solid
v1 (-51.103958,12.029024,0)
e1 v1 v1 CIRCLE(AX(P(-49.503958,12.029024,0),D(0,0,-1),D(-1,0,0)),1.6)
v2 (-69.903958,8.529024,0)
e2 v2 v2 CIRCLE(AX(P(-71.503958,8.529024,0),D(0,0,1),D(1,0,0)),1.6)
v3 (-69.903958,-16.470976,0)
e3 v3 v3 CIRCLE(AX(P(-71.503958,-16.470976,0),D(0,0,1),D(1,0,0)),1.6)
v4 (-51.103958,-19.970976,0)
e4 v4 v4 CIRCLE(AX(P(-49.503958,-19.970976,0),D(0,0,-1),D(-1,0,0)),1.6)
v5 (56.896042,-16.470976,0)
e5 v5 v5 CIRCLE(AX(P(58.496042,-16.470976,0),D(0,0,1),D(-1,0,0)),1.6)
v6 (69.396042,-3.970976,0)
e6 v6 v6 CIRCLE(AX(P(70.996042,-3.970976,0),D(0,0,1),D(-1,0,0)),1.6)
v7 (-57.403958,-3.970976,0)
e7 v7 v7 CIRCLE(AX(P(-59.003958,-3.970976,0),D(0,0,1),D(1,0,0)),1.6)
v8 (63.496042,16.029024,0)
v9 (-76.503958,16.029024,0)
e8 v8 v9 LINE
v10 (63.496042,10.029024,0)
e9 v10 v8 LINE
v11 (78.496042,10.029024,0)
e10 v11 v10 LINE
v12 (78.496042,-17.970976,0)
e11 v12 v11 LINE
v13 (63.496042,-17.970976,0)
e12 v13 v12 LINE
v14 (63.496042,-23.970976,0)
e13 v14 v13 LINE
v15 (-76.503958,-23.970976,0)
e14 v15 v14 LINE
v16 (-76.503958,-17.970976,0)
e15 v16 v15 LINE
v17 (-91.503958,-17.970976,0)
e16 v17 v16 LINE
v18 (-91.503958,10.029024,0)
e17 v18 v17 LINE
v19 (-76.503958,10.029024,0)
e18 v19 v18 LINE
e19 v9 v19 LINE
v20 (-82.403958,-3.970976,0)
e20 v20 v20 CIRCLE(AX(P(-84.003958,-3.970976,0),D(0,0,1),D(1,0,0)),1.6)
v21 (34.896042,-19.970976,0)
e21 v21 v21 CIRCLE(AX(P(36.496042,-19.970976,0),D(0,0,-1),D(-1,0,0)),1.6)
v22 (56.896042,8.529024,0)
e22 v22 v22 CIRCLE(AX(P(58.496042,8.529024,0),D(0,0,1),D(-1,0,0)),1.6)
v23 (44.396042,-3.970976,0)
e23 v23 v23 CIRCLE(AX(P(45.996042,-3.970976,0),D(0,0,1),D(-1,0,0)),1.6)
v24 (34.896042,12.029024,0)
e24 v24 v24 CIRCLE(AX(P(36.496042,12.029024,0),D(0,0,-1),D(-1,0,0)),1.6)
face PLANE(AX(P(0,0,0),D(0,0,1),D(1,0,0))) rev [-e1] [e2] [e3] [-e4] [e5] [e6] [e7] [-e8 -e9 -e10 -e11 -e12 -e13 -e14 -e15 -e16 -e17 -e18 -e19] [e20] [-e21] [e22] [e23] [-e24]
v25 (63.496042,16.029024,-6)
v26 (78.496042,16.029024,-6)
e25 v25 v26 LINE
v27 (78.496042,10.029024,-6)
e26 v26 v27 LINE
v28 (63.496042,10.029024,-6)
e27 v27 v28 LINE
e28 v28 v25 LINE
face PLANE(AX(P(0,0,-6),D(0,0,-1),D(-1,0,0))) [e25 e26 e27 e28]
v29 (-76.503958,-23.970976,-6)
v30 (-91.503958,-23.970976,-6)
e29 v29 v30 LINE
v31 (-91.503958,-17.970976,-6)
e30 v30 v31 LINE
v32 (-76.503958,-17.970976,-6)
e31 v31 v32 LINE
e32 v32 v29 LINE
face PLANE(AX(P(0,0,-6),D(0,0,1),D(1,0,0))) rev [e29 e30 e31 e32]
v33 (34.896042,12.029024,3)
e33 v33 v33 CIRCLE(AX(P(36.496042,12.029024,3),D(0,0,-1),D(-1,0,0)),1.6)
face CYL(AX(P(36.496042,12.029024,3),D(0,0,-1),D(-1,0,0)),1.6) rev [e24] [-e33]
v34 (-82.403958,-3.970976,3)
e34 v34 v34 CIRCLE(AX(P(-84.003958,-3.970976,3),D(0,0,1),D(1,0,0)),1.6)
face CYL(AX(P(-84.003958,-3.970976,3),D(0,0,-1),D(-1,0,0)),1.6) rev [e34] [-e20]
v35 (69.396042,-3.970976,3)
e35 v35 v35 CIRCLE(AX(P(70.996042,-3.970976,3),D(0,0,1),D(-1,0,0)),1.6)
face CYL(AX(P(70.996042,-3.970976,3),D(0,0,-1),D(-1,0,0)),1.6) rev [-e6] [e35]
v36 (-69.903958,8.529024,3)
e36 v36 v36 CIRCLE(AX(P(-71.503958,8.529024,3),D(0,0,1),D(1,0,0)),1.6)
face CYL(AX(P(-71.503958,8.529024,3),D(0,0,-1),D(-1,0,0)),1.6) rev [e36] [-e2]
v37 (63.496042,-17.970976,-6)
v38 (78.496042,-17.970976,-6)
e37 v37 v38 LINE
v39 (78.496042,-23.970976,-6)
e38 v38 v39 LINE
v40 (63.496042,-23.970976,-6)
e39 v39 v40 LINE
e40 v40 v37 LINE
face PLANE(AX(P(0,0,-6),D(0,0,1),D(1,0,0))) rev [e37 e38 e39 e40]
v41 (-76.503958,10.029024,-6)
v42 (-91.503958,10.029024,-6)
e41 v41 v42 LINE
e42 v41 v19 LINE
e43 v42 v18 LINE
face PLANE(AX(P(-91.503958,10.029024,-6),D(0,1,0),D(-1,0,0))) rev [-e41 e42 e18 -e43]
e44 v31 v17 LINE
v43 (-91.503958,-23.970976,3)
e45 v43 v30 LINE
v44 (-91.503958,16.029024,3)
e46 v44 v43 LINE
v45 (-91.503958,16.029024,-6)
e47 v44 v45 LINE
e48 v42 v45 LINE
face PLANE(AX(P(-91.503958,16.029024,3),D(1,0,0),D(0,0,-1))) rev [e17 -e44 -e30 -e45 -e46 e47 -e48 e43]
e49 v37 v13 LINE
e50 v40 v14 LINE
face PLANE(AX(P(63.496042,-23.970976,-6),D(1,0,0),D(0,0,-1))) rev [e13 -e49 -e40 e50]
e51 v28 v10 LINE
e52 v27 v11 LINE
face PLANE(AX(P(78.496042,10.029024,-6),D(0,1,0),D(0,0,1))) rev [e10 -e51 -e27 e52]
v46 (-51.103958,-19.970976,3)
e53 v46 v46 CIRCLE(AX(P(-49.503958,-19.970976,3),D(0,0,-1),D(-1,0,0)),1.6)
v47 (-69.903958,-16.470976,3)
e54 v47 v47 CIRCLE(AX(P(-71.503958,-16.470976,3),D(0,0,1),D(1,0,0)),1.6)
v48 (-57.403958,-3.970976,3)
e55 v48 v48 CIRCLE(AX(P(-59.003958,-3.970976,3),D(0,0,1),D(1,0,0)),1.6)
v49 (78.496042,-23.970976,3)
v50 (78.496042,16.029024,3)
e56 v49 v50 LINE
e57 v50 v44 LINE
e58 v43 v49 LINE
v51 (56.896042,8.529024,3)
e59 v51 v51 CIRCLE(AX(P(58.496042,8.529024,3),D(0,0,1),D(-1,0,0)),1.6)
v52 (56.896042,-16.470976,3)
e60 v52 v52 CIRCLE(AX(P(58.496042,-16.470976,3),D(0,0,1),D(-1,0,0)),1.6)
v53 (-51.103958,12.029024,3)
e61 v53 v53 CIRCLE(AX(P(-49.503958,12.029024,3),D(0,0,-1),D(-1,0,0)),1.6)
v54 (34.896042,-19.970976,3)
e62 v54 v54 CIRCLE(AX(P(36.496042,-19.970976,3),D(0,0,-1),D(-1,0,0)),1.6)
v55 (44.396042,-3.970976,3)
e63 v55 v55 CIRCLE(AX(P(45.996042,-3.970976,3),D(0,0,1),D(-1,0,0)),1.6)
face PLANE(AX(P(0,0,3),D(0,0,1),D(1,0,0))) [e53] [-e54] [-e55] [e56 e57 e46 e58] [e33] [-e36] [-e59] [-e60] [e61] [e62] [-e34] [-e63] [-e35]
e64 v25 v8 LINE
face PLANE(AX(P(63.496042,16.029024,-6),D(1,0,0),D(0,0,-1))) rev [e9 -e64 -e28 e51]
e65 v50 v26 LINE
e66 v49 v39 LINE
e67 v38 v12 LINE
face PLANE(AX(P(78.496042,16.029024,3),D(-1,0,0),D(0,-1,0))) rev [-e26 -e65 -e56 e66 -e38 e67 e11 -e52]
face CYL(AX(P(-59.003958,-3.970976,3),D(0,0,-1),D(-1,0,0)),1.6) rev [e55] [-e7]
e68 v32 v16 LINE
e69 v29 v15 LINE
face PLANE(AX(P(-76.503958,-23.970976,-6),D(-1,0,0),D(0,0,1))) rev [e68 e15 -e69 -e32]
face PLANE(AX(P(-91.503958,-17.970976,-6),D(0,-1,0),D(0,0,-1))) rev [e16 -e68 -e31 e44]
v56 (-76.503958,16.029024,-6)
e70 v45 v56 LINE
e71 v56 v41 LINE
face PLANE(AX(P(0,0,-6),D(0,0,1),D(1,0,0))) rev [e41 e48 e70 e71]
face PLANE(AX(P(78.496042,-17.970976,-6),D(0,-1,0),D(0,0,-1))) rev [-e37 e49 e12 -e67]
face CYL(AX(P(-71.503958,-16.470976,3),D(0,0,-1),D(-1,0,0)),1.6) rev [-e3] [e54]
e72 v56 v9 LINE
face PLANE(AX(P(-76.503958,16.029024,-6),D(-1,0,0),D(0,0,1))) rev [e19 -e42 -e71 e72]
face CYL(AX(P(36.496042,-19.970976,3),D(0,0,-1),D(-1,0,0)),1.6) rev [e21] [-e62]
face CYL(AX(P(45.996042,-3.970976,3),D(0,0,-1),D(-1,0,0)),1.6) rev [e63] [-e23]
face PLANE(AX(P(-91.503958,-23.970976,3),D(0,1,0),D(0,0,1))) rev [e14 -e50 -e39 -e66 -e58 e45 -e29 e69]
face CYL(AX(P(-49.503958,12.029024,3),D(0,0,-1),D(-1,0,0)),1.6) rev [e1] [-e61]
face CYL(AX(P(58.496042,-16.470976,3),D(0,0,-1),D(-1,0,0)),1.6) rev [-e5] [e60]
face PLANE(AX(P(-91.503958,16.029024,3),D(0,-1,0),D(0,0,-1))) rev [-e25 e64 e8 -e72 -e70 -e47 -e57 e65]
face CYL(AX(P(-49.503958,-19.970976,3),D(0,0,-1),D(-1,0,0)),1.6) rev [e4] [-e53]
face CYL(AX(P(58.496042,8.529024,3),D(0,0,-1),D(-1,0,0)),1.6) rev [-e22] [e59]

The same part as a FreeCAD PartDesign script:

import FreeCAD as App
import Part
import Sketcher
from FreeCAD import Vector
Q = App.Units.Quantity

doc = App.newDocument("Part")
body = doc.addObject("PartDesign::Body", "Body")

# Sketch on XY plane
sketch1 = body.newObject("Sketcher::SketchObject", "Sketch")
sketch1.AttachmentSupport = (doc.getObject("XY_Plane"), [""])
sketch1.MapMode = "FlatFace"
sketch1.addGeometry([
    Part.LineSegment(Vector(-91.503958, 16.029024, 0), Vector(-91.503958, -23.970976, 0)),  # 0
    Part.LineSegment(Vector(-91.503958, -23.970976, 0), Vector(78.496042, -23.970976, 0)),  # 1
    Part.LineSegment(Vector(78.496042, -23.970976, 0), Vector(78.496042, 16.029024, 0)),  # 2
    Part.LineSegment(Vector(78.496042, 16.029024, 0), Vector(-91.503958, 16.029024, 0)),  # 3
    Part.Circle(Vector(-71.503958, -16.470976, 0), Vector(0, 0, 1), 1.6),  # 4
    Part.Circle(Vector(58.496042, -16.470976, 0), Vector(0, 0, 1), 1.6),  # 5
    Part.Circle(Vector(-84.003958, -3.970976, 0), Vector(0, 0, 1), 1.6),  # 6
    Part.Circle(Vector(-59.003958, -3.970976, 0), Vector(0, 0, 1), 1.6),  # 7
    Part.Circle(Vector(-71.503958, 8.529024, 0), Vector(0, 0, 1), 1.6),  # 8
    Part.Circle(Vector(45.996042, -3.970976, 0), Vector(0, 0, 1), 1.6),  # 9
    Part.Circle(Vector(70.996042, -3.970976, 0), Vector(0, 0, 1), 1.6),  # 10
    Part.Circle(Vector(58.496042, 8.529024, 0), Vector(0, 0, 1), 1.6),  # 11
], False)
sketch1.addConstraint([
    Sketcher.Constraint("Coincident", 0, 2, 1, 1),
    Sketcher.Constraint("Coincident", 1, 2, 2, 1),
    Sketcher.Constraint("Coincident", 2, 2, 3, 1),
    Sketcher.Constraint("Coincident", 3, 2, 0, 1),
    Sketcher.Constraint("Vertical", 0),
    Sketcher.Constraint("Horizontal", 1),
    Sketcher.Constraint("Vertical", 2),
    Sketcher.Constraint("Horizontal", 3),
    Sketcher.Constraint("Equal", 4, 5),
    Sketcher.Constraint("Equal", 5, 6),
    Sketcher.Constraint("Equal", 6, 7),
    Sketcher.Constraint("Equal", 7, 8),
    Sketcher.Constraint("Equal", 8, 9),
    Sketcher.Constraint("Equal", 9, 10),
    Sketcher.Constraint("Equal", 10, 11),
    Sketcher.Constraint("Horizontal", 4, 3, 5, 3),
    Sketcher.Constraint("Horizontal", 6, 3, 7, 3),
    Sketcher.Constraint("Horizontal", 7, 3, 9, 3),
    Sketcher.Constraint("Horizontal", 9, 3, 10, 3),
    Sketcher.Constraint("Horizontal", 8, 3, 11, 3),
    Sketcher.Constraint("Vertical", 4, 3, 8, 3),
    Sketcher.Constraint("Vertical", 5, 3, 11, 3),
    Sketcher.Constraint("Diameter", 4, Q("3.2 mm")),
    Sketcher.Constraint("DistanceX", 1, 1, 1, 2, Q("170 mm")),
    Sketcher.Constraint("DistanceY", 0, 2, 0, 1, Q("40 mm")),
    Sketcher.Constraint("DistanceX", 4, 3, 5, 3, Q("130 mm")),
    Sketcher.Constraint("DistanceX", 6, 3, 7, 3, Q("25 mm")),
    Sketcher.Constraint("DistanceY", 4, 3, 8, 3, Q("25 mm")),
    Sketcher.Constraint("DistanceX", 7, 3, 9, 3, Q("105 mm")),
    Sketcher.Constraint("DistanceX", 9, 3, 10, 3, Q("25 mm")),
    Sketcher.Constraint("DistanceX", 0, 2, 4, 3, Q("20 mm")),
    Sketcher.Constraint("DistanceY", 0, 2, 6, 3, Q("20 mm")),
    Sketcher.Constraint("DistanceX", 6, 3, 4, 3, Q("12.5 mm")),
    Sketcher.Constraint("DistanceY", 4, 3, 6, 3, Q("12.5 mm")),
    Sketcher.Constraint("DistanceX", 4, 3, -1, 1, Q("71.503958 mm")),
    Sketcher.Constraint("DistanceY", 4, 3, -1, 1, Q("16.470976 mm")),
])
pad1 = body.newObject("PartDesign::Pad", "Pad")
pad1.Profile = sketch1
pad1.Length = 3

# Sketch on XY plane
sketch2 = body.newObject("Sketcher::SketchObject", "Sketch001")
sketch2.AttachmentSupport = (doc.getObject("XY_Plane"), [""])
sketch2.MapMode = "FlatFace"
sketch2.addGeometry([
    Part.Circle(Vector(36.496042, 12.029024, 0), Vector(0, 0, 1), 1.6),
    Part.Circle(Vector(36.496042, -19.970976, 0), Vector(0, 0, 1), 1.6),
    Part.Circle(Vector(-49.503958, 12.029024, 0), Vector(0, 0, 1), 1.6),
    Part.Circle(Vector(-49.503958, -19.970976, 0), Vector(0, 0, 1), 1.6),
], False)
sketch2.addConstraint([
    Sketcher.Constraint("Equal", 0, 1),
    Sketcher.Constraint("Equal", 1, 2),
    Sketcher.Constraint("Equal", 2, 3),
    Sketcher.Constraint("Horizontal", 0, 3, 2, 3),
    Sketcher.Constraint("Horizontal", 1, 3, 3, 3),
    Sketcher.Constraint("Vertical", 0, 3, 1, 3),
    Sketcher.Constraint("Vertical", 2, 3, 3, 3),
    Sketcher.Constraint("Diameter", 0, Q("3.2 mm")),
    Sketcher.Constraint("DistanceY", 1, 3, 0, 3, Q("32 mm")),
    Sketcher.Constraint("DistanceX", 2, 3, 0, 3, Q("86 mm")),
    Sketcher.Constraint("DistanceX", -1, 1, 0, 3, Q("36.496042 mm")),
    Sketcher.Constraint("DistanceY", -1, 1, 0, 3, Q("12.029024 mm")),
])
pocket1 = body.newObject("PartDesign::Pocket", "Pocket")
pocket1.Profile = sketch2
pocket1.Type = "ThroughAll"
pocket1.Reversed = True

# Sketch on XY plane
sketch3 = body.newObject("Sketcher::SketchObject", "Sketch002")
sketch3.AttachmentSupport = (doc.getObject("XY_Plane"), [""])
sketch3.MapMode = "FlatFace"
sketch3.addGeometry([
    Part.LineSegment(Vector(78.496042, 16.029024, 0), Vector(78.496042, 10.029024, 0)),  # 0
    Part.LineSegment(Vector(78.496042, 10.029024, 0), Vector(63.496042, 10.029024, 0)),  # 1
    Part.LineSegment(Vector(63.496042, 10.029024, 0), Vector(63.496042, 16.029024, 0)),  # 2
    Part.LineSegment(Vector(63.496042, 16.029024, 0), Vector(78.496042, 16.029024, 0)),  # 3
    Part.LineSegment(Vector(78.496042, -17.970976, 0), Vector(78.496042, -23.970976, 0)),  # 4
    Part.LineSegment(Vector(78.496042, -23.970976, 0), Vector(63.496042, -23.970976, 0)),  # 5
    Part.LineSegment(Vector(63.496042, -23.970976, 0), Vector(63.496042, -17.970976, 0)),  # 6
    Part.LineSegment(Vector(63.496042, -17.970976, 0), Vector(78.496042, -17.970976, 0)),  # 7
    Part.LineSegment(Vector(-76.503958, 16.029024, 0), Vector(-76.503958, 10.029024, 0)),  # 8
    Part.LineSegment(Vector(-76.503958, 10.029024, 0), Vector(-91.503958, 10.029024, 0)),  # 9
    Part.LineSegment(Vector(-91.503958, 10.029024, 0), Vector(-91.503958, 16.029024, 0)),  # 10
    Part.LineSegment(Vector(-91.503958, 16.029024, 0), Vector(-76.503958, 16.029024, 0)),  # 11
    Part.LineSegment(Vector(-76.503958, -17.970976, 0), Vector(-76.503958, -23.970976, 0)),  # 12
    Part.LineSegment(Vector(-76.503958, -23.970976, 0), Vector(-91.503958, -23.970976, 0)),  # 13
    Part.LineSegment(Vector(-91.503958, -23.970976, 0), Vector(-91.503958, -17.970976, 0)),  # 14
    Part.LineSegment(Vector(-91.503958, -17.970976, 0), Vector(-76.503958, -17.970976, 0)),  # 15
], False)
sketch3.addConstraint([
    Sketcher.Constraint("Coincident", 0, 2, 1, 1),
    Sketcher.Constraint("Coincident", 1, 2, 2, 1),
    Sketcher.Constraint("Coincident", 2, 2, 3, 1),
    Sketcher.Constraint("Coincident", 3, 2, 0, 1),
    Sketcher.Constraint("Coincident", 4, 2, 5, 1),
    Sketcher.Constraint("Coincident", 5, 2, 6, 1),
    Sketcher.Constraint("Coincident", 6, 2, 7, 1),
    Sketcher.Constraint("Coincident", 7, 2, 4, 1),
    Sketcher.Constraint("Coincident", 8, 2, 9, 1),
    Sketcher.Constraint("Coincident", 9, 2, 10, 1),
    Sketcher.Constraint("Coincident", 10, 2, 11, 1),
    Sketcher.Constraint("Coincident", 11, 2, 8, 1),
    Sketcher.Constraint("Coincident", 12, 2, 13, 1),
    Sketcher.Constraint("Coincident", 13, 2, 14, 1),
    Sketcher.Constraint("Coincident", 14, 2, 15, 1),
    Sketcher.Constraint("Coincident", 15, 2, 12, 1),
    Sketcher.Constraint("Vertical", 0),
    Sketcher.Constraint("Horizontal", 1),
    Sketcher.Constraint("Vertical", 2),
    Sketcher.Constraint("Horizontal", 3),
    Sketcher.Constraint("Vertical", 4),
    Sketcher.Constraint("Horizontal", 5),
    Sketcher.Constraint("Vertical", 6),
    Sketcher.Constraint("Horizontal", 7),
    Sketcher.Constraint("Vertical", 8),
    Sketcher.Constraint("Horizontal", 9),
    Sketcher.Constraint("Vertical", 10),
    Sketcher.Constraint("Horizontal", 11),
    Sketcher.Constraint("Vertical", 12),
    Sketcher.Constraint("Horizontal", 13),
    Sketcher.Constraint("Vertical", 14),
    Sketcher.Constraint("Horizontal", 15),
    Sketcher.Constraint("Horizontal", 1, 2, 8, 2),
    Sketcher.Constraint("Horizontal", 3, 2, 10, 2),
    Sketcher.Constraint("Horizontal", 5, 2, 12, 2),
    Sketcher.Constraint("Horizontal", 7, 2, 14, 2),
    Sketcher.Constraint("Vertical", 3, 2, 4, 2),
    Sketcher.Constraint("Vertical", 2, 2, 5, 2),
    Sketcher.Constraint("Vertical", 11, 2, 12, 2),
    Sketcher.Constraint("Vertical", 10, 2, 13, 2),
    Sketcher.Constraint("Equal", 7, 9),
    Sketcher.Constraint("Equal", 2, 4),
    Sketcher.Constraint("DistanceX", 1, 2, 1, 1, Q("15 mm")),
    Sketcher.Constraint("DistanceY", 0, 2, 0, 1, Q("6 mm")),
    Sketcher.Constraint("DistanceY", 4, 2, 0, 2, Q("34 mm")),
    Sketcher.Constraint("DistanceX", 8, 2, 1, 2, Q("140 mm")),
    Sketcher.Constraint("DistanceX", -1, 1, 0, 2, Q("78.496042 mm")),
    Sketcher.Constraint("DistanceY", -1, 1, 0, 2, Q("10.029024 mm")),
])
pad2 = body.newObject("PartDesign::Pad", "Pad001")
pad2.Profile = sketch3
pad2.Length = 6
pad2.Reversed = True

doc.recompute()
